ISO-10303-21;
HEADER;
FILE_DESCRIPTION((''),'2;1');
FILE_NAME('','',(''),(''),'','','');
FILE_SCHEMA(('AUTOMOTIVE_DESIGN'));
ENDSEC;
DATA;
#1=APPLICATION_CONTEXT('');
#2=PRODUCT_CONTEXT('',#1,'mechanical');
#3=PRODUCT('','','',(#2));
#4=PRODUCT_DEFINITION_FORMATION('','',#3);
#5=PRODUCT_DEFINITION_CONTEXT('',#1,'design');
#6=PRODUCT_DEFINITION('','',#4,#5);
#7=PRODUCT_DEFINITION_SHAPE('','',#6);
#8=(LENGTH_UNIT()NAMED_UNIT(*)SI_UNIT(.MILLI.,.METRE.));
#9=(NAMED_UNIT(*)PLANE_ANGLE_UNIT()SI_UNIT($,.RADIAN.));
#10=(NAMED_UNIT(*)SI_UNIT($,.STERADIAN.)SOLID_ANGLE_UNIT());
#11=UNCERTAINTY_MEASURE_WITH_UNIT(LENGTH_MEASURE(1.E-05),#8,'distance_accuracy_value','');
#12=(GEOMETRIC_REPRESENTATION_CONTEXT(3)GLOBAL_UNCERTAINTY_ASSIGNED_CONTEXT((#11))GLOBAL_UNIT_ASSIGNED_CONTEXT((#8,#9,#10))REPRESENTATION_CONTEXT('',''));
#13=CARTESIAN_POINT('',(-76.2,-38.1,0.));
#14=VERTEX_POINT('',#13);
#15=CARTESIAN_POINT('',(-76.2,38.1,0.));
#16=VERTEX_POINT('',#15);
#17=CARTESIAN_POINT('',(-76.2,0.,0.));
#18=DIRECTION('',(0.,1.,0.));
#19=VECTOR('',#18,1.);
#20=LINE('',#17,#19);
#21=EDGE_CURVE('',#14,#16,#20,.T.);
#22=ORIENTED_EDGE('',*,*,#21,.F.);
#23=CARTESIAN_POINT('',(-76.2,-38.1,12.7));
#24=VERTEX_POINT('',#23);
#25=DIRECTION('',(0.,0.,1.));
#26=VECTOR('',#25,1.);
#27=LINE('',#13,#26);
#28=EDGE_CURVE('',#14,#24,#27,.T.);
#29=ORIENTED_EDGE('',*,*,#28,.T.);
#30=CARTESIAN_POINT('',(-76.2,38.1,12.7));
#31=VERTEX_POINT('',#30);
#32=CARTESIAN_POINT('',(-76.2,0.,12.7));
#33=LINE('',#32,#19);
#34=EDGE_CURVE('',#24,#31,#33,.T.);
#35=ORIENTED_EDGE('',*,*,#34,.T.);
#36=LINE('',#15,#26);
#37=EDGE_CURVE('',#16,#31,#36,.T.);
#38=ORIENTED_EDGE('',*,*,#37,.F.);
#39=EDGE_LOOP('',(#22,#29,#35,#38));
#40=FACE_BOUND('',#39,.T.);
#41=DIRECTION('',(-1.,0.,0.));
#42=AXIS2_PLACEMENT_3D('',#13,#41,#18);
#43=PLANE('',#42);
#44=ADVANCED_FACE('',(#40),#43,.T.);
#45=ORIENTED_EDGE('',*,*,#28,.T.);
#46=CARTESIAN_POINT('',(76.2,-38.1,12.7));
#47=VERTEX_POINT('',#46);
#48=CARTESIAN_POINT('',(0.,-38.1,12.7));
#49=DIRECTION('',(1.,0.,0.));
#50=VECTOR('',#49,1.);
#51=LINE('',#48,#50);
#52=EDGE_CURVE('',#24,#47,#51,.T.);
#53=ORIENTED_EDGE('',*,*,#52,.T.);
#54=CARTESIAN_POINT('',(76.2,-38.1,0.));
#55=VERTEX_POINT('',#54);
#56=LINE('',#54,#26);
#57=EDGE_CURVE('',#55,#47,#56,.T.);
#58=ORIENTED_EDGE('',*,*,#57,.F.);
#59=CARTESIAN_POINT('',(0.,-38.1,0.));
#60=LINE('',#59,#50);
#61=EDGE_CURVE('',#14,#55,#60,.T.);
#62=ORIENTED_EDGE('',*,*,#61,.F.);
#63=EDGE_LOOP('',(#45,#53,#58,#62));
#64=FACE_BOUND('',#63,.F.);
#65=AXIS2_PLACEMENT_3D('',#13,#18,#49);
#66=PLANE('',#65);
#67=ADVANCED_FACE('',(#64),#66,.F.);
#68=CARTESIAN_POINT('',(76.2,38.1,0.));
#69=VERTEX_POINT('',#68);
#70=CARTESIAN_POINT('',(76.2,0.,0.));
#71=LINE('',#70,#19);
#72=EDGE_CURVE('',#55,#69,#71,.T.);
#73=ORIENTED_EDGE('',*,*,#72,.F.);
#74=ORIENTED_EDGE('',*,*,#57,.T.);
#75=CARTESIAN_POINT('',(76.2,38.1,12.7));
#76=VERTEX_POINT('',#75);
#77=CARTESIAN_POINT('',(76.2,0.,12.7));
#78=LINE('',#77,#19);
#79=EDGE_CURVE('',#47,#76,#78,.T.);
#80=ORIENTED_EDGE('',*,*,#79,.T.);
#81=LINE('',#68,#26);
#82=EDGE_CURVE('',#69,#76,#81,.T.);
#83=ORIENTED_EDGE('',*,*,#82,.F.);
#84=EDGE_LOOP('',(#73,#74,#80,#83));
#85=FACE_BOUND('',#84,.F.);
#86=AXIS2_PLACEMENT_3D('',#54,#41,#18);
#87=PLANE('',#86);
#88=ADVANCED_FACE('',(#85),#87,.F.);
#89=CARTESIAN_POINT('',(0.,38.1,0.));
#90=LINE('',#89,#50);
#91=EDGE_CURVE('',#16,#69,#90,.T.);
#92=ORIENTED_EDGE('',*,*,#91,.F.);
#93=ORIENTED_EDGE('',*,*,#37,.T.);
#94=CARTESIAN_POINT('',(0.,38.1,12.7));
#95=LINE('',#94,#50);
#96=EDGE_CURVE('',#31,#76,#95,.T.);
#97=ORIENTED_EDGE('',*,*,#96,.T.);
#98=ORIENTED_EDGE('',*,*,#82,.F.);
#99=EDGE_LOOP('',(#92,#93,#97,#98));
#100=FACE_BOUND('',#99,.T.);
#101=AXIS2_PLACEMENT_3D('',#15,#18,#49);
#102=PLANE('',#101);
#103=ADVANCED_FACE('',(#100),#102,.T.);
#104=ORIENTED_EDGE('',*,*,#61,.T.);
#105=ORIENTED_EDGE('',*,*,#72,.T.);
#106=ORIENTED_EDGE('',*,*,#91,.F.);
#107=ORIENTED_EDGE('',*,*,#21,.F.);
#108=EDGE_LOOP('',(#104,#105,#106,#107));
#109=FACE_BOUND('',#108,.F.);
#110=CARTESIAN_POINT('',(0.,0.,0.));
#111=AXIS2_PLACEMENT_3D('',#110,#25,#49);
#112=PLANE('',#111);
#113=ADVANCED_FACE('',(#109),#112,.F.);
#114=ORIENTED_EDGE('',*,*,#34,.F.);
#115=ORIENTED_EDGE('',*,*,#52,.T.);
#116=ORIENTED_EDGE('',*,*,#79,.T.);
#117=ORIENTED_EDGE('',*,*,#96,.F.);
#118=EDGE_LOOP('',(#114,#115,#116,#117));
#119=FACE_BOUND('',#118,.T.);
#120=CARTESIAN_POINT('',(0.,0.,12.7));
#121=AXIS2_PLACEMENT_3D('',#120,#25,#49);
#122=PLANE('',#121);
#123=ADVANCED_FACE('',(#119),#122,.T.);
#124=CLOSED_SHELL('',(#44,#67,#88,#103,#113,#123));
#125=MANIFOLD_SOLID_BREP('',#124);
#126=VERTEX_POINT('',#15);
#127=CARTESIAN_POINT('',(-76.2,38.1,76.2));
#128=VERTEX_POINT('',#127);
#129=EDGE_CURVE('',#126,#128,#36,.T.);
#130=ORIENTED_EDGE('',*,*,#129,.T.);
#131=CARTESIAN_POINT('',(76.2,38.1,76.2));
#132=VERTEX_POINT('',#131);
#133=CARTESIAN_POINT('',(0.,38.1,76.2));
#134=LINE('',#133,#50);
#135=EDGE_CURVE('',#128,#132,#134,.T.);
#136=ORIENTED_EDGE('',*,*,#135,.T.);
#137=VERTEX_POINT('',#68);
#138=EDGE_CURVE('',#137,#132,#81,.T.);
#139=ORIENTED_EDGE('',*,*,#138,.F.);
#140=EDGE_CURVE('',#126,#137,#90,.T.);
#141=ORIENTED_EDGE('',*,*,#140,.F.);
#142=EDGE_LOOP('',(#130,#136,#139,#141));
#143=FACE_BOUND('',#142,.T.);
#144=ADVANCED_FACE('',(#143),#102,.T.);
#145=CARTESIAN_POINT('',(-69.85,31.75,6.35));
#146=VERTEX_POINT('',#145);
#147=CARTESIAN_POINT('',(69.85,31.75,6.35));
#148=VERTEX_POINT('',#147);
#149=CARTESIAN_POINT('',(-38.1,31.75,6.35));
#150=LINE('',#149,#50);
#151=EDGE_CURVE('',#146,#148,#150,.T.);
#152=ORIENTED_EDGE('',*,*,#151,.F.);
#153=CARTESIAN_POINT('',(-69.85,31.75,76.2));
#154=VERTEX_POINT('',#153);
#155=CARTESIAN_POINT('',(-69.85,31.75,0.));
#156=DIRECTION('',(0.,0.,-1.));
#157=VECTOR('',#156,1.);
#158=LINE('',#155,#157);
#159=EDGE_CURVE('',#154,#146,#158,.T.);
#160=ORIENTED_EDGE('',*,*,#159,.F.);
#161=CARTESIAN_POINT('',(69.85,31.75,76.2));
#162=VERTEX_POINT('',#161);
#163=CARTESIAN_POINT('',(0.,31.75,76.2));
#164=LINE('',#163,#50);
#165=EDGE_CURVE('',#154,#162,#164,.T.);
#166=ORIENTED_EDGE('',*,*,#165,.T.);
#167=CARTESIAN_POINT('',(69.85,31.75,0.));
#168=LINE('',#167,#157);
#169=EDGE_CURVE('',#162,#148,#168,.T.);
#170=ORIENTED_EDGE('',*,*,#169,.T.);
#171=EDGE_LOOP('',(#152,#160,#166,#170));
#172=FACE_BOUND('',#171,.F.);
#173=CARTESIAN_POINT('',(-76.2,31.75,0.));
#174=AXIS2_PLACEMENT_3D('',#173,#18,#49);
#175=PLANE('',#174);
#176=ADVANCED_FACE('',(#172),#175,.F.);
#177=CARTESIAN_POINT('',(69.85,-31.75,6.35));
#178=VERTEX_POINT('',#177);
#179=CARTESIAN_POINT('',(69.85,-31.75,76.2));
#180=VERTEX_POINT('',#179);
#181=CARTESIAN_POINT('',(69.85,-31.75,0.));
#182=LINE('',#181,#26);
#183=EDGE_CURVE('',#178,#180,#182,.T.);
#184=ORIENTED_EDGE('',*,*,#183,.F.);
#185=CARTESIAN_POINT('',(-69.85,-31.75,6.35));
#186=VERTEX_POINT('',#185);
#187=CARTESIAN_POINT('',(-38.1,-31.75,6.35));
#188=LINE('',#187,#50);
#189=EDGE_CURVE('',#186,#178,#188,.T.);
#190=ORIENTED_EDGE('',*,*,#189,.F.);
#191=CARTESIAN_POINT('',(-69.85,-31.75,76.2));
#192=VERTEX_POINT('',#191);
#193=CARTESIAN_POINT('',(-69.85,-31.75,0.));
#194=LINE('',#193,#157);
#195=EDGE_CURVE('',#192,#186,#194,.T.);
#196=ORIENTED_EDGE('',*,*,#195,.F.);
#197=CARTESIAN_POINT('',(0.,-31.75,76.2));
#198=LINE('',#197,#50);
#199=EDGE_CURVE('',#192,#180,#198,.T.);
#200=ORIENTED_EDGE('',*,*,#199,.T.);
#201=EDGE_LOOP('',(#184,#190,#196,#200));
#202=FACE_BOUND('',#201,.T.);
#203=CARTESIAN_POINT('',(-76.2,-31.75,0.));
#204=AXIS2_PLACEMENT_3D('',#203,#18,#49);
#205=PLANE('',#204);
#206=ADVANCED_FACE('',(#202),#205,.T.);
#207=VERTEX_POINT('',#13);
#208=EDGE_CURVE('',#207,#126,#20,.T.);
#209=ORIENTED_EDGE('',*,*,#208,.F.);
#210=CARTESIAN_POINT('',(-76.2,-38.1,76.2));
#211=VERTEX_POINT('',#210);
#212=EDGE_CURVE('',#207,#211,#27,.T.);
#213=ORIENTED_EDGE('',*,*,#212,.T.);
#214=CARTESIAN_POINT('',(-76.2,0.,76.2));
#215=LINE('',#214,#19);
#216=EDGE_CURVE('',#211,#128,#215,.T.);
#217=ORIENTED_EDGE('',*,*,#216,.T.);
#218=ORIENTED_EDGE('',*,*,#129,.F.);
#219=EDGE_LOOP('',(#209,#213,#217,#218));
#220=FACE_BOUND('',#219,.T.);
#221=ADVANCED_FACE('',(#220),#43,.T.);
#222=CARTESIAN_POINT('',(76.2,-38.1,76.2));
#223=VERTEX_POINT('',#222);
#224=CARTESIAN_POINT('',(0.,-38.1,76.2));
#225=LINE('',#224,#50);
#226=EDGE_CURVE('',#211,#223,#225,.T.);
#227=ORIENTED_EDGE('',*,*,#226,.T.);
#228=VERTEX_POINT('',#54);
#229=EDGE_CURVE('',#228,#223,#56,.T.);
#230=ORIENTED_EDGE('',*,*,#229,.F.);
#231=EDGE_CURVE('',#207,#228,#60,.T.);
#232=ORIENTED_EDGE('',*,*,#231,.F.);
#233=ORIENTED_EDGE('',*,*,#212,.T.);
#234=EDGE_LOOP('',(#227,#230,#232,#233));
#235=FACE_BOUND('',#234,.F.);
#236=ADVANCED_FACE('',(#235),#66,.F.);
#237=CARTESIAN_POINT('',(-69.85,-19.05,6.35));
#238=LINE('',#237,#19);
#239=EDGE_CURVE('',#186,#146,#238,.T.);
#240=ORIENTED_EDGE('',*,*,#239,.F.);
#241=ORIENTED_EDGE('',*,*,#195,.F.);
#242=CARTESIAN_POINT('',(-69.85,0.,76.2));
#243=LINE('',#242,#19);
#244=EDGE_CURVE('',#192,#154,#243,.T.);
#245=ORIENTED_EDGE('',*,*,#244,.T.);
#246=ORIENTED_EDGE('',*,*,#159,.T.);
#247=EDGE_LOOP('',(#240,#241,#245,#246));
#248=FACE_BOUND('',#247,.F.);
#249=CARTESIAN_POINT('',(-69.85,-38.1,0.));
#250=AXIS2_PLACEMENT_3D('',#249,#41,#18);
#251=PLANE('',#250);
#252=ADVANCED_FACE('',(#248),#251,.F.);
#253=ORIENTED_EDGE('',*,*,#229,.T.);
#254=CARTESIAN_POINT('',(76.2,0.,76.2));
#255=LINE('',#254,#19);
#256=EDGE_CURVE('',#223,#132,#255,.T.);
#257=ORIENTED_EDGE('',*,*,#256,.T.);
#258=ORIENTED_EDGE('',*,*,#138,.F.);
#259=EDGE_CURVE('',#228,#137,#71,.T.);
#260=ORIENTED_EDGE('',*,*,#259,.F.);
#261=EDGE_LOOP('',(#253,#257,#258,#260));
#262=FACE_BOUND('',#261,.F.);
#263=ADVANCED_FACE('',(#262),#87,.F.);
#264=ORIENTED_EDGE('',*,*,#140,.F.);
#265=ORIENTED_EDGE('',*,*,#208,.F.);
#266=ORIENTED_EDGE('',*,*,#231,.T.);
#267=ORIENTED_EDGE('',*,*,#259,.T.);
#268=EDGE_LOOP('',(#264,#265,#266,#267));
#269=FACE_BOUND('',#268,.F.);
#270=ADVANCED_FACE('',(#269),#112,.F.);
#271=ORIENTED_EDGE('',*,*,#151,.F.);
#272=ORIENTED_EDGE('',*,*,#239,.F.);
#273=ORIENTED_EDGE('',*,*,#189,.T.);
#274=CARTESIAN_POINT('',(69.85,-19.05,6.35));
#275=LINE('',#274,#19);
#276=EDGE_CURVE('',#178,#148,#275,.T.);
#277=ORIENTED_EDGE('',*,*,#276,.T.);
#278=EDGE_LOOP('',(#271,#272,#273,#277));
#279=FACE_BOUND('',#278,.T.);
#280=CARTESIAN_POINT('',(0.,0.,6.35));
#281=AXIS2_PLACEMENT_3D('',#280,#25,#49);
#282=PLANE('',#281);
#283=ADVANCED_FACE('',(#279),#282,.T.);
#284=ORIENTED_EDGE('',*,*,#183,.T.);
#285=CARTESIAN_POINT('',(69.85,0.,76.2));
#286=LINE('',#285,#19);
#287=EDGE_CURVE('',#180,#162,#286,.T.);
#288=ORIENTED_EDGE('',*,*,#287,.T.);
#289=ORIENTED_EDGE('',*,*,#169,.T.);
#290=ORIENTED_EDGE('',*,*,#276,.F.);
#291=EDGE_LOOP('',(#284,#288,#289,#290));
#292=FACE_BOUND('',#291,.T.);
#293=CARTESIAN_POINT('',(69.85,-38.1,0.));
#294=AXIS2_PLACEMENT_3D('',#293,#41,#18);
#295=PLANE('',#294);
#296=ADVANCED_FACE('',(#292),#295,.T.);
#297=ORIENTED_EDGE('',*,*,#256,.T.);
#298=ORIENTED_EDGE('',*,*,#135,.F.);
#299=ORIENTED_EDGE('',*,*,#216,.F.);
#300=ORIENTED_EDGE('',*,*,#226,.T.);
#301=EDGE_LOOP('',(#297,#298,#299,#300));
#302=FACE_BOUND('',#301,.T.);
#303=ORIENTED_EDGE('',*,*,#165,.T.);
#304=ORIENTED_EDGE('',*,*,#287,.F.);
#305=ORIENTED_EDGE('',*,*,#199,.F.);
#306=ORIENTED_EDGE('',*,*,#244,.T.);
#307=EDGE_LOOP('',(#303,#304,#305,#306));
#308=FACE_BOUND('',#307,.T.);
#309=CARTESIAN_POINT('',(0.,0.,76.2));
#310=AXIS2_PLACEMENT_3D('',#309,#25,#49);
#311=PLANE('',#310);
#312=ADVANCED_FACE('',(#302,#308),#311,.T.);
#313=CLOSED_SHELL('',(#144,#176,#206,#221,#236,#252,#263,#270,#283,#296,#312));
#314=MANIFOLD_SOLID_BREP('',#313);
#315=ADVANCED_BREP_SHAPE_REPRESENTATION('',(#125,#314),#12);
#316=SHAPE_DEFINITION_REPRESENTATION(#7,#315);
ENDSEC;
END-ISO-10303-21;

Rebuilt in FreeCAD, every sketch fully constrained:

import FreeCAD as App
import Part
import Sketcher
Q = App.Units.Quantity


def faces_at(feature, points):
    """Names of the faces that lie closest to the given points."""
    faces = feature.Shape.Faces
    near = lambda p: min(range(len(faces)), key=lambda i: faces[i].distToShape(Part.Vertex(*p))[0])
    return sorted({f"Face{near(p) + 1}" for p in points})


def add_polygon(sketch, points):
    """Adds a closed chain of lines whose ends are joined by coincident constraints."""
    first, n = sketch.GeometryCount, len(points)
    for a, b in zip(points, points[1:] + points[:1]):
        sketch.addGeometry(Part.LineSegment(App.Vector(*a, 0), App.Vector(*b, 0)), False)
    for i in range(n):
        sketch.addConstraint(Sketcher.Constraint("Coincident", first + i, 2, first + (i + 1) % n, 1))

doc = App.newDocument("Part")
body = doc.addObject("PartDesign::Body", "Body")

# Sketch on XY plane
sketch1 = body.newObject("Sketcher::SketchObject", "Sketch")
sketch1.AttachmentSupport = (doc.getObject("XY_Plane"), [""])
sketch1.MapMode = "FlatFace"
add_polygon(sketch1, [(-76.2, 38.1), (-76.2, -38.1), (76.2, -38.1), (76.2, 38.1)])  # lines 0-3
sketch1.addConstraint([
    Sketcher.Constraint("Vertical", 0),
    Sketcher.Constraint("Horizontal", 1),
    Sketcher.Constraint("Vertical", 2),
    Sketcher.Constraint("Horizontal", 3),
    Sketcher.Constraint("Symmetric", 0, 2, 2, 2, -1, 1),
    Sketcher.Constraint("DistanceX", 1, 1, 1, 2, Q("6 in")),
    Sketcher.Constraint("DistanceY", 0, 2, 0, 1, Q("3 in")),
])
pad1 = body.newObject("PartDesign::Pad", "Pad")
pad1.Profile = sketch1
pad1.Length = Q("3 in")
doc.recompute()

thickness = body.newObject("PartDesign::Thickness", "Thickness")
thickness.Base = (pad1, faces_at(pad1, [(0, 0, 76.2)]))
thickness.Value = Q("0.25 in")
thickness.Reversed = True
thickness.Join = "Arc"
body2 = doc.addObject("PartDesign::Body", "Body001")

# Sketch on XY plane
sketch2 = body2.newObject("Sketcher::SketchObject", "Sketch001")
sketch2.AttachmentSupport = (doc.getObject("XY_Plane001"), [""])
sketch2.MapMode = "FlatFace"
add_polygon(sketch2, [(-76.2, 38.1), (-76.2, -38.1), (76.2, -38.1), (76.2, 38.1)])  # lines 0-3
sketch2.addConstraint([
    Sketcher.Constraint("Vertical", 0),
    Sketcher.Constraint("Horizontal", 1),
    Sketcher.Constraint("Vertical", 2),
    Sketcher.Constraint("Horizontal", 3),
    Sketcher.Constraint("Symmetric", 0, 2, 2, 2, -1, 1),
    Sketcher.Constraint("DistanceX", 1, 1, 1, 2, Q("6 in")),
    Sketcher.Constraint("DistanceY", 0, 2, 0, 1, Q("3 in")),
])
pad2 = body2.newObject("PartDesign::Pad", "Pad001")
pad2.Profile = sketch2
pad2.Length = Q("0.5 in")

doc.recompute()
